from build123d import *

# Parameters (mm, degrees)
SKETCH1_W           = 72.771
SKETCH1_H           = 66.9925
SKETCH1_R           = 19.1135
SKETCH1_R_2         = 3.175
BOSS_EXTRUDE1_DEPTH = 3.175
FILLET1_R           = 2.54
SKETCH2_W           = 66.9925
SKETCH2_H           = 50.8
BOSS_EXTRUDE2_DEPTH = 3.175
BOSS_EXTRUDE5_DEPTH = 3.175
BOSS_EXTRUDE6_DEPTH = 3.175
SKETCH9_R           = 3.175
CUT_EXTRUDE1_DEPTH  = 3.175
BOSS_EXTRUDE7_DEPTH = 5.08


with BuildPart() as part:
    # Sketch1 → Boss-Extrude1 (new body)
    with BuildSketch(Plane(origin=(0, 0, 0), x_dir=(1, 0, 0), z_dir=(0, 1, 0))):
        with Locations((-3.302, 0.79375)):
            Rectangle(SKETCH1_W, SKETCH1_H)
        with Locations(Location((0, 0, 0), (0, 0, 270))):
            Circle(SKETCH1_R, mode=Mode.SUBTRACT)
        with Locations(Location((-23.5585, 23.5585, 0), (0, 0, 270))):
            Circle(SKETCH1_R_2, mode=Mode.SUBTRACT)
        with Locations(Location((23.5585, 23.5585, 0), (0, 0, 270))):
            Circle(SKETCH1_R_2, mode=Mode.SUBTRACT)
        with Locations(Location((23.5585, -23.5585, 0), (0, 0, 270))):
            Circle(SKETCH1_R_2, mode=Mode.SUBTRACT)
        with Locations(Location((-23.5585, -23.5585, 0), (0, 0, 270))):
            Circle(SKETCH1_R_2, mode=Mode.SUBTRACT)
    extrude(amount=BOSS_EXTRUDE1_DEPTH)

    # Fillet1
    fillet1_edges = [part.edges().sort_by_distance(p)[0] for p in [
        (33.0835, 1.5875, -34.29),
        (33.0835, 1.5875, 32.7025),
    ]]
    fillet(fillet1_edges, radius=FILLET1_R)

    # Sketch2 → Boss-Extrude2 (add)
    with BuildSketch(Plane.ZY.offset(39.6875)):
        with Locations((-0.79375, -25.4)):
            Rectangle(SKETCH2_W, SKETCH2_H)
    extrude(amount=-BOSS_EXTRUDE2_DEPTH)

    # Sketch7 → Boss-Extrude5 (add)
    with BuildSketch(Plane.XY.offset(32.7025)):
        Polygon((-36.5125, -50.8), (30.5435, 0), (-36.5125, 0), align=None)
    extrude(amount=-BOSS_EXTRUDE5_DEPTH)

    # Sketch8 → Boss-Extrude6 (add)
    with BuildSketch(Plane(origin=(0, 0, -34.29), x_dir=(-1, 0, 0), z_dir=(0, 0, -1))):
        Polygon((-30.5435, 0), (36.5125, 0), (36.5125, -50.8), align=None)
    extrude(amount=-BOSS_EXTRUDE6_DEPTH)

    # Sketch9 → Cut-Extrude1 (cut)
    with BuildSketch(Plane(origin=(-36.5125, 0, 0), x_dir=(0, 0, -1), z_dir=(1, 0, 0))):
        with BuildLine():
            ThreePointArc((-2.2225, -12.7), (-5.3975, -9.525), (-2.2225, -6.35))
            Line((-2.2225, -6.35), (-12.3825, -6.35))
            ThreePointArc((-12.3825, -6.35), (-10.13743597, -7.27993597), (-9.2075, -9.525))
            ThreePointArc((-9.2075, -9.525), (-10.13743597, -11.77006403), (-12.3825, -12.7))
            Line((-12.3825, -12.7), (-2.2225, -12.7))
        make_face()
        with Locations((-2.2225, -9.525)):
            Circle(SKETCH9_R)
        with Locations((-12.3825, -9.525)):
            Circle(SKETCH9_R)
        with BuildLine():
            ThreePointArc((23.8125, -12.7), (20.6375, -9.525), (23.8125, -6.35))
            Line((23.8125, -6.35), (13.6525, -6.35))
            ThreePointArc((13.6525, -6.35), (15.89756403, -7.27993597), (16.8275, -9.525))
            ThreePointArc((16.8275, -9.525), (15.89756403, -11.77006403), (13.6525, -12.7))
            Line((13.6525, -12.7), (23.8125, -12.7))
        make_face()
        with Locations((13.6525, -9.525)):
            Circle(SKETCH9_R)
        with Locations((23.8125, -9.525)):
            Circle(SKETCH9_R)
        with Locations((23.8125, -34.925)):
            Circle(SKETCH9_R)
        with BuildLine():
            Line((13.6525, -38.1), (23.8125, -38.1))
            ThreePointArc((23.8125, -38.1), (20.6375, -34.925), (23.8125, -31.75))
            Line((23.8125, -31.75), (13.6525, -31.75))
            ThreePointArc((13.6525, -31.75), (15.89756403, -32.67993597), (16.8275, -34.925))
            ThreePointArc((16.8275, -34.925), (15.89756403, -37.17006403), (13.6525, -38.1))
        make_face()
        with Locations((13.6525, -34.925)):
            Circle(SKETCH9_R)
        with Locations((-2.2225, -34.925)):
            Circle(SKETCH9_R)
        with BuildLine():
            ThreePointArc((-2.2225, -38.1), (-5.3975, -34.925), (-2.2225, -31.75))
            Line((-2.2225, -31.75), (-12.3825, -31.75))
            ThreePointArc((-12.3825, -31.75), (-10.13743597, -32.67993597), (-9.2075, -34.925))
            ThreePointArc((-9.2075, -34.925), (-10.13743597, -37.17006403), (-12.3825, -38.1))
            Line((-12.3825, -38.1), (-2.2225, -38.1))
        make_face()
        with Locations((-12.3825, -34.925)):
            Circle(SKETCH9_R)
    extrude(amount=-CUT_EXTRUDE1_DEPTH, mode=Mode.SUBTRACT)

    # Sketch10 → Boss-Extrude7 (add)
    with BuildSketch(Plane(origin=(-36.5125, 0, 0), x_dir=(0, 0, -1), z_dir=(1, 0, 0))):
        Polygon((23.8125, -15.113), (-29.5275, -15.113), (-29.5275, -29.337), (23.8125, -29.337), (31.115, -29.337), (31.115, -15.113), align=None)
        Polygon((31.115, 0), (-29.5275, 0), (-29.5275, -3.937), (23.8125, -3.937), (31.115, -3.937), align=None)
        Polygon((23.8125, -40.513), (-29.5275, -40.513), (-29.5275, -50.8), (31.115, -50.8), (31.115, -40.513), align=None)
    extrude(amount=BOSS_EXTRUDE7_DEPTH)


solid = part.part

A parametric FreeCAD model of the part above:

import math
import FreeCAD as App
import Part
import Sketcher
from FreeCAD import Vector
Q = App.Units.Quantity


def edges_at(feature, points):
    """Names of the edges that pass closest to the given points."""
    edges = feature.Shape.Edges
    near = lambda p: min(range(len(edges)), key=lambda i: edges[i].distToShape(Part.Vertex(*p))[0])
    return sorted({f"Edge{near(p) + 1}" for p in points})


def add_polygon(sketch, points):
    """Adds a closed chain of lines whose ends are joined by coincident constraints."""
    first, n = sketch.GeometryCount, len(points)
    for a, b in zip(points, points[1:] + points[:1]):
        sketch.addGeometry(Part.LineSegment(App.Vector(*a, 0), App.Vector(*b, 0)), False)
    for i in range(n):
        sketch.addConstraint(Sketcher.Constraint("Coincident", first + i, 2, first + (i + 1) % n, 1))

doc = App.newDocument("Part")
body = doc.addObject("PartDesign::Body", "Body")

# Sketch on XZ plane
sketch1 = doc.addObject("Sketcher::SketchObject", "Sketch")
body.addObject(sketch1)
sketch1.AttachmentSupport = (doc.XZ_Plane, [""])
sketch1.MapMode = "FlatFace"
add_polygon(sketch1, [(-39.6875, -34.29), (-39.6875, 32.7025), (33.0835, 32.7025), (33.0835, -34.29)])  # lines 0-3
sketch1.addGeometry(Part.Circle(Vector(-23.5585, 23.5585, 0), Vector(0, 0, 1), 3.175), False)  # 4
sketch1.addGeometry(Part.Circle(Vector(23.5585, 23.5585, 0), Vector(0, 0, 1), 3.175), False)  # 5
sketch1.addGeometry(Part.Circle(Vector(-23.5585, -23.5585, 0), Vector(0, 0, 1), 3.175), False)  # 6
sketch1.addGeometry(Part.Circle(Vector(0, 0, 0), Vector(0, 0, 1), 19.1135), False)  # 7
sketch1.addGeometry(Part.Circle(Vector(23.5585, -23.5585, 0), Vector(0, 0, 1), 3.175), False)  # 8
sketch1.addConstraint(Sketcher.Constraint("Vertical", 0))
sketch1.addConstraint(Sketcher.Constraint("Horizontal", 1))
sketch1.addConstraint(Sketcher.Constraint("Vertical", 2))
sketch1.addConstraint(Sketcher.Constraint("Horizontal", 3))
sketch1.addConstraint(Sketcher.Constraint("Coincident", 7, 3, -1, 1))
sketch1.addConstraint(Sketcher.Constraint("Equal", 4, 5))
sketch1.addConstraint(Sketcher.Constraint("Equal", 5, 6))
sketch1.addConstraint(Sketcher.Constraint("Equal", 6, 8))
sketch1.addConstraint(Sketcher.Constraint("Symmetric", 5, 3, 6, 3, -1, 1))
sketch1.addConstraint(Sketcher.Constraint("Symmetric", 4, 3, 8, 3, -1, 1))
sketch1.addConstraint(Sketcher.Constraint("Symmetric", 4, 3, 5, 3, -2))
sketch1.addConstraint(Sketcher.Constraint("Diameter", 4, Q("0.25 in")))
sketch1.addConstraint(Sketcher.Constraint("Diameter", 7, Q("1.505 in")))
sketch1.addConstraint(Sketcher.Constraint("DistanceX", 1, 1, 1, 2, Q("2.865 in")))
sketch1.addConstraint(Sketcher.Constraint("DistanceY", 2, 2, -1, 1, Q("1.35 in")))
sketch1.addConstraint(Sketcher.Constraint("DistanceY", 4, 3, 0, 2, Q("0.36 in")))
sketch1.addConstraint(Sketcher.Constraint("DistanceX", 0, 2, 5, 3, Q("2.49 in")))
sketch1.addConstraint(Sketcher.Constraint("DistanceX", 4, 3, 1, 2, Q("2.23 in")))
sketch1.addConstraint(Sketcher.Constraint("DistanceY", 0, 1, 0, 2, Q("2.6375 in")))
pad1 = doc.addObject("PartDesign::Pad", "Pad")
body.addObject(pad1)
pad1.Profile = sketch1
pad1.Length = Q("0.125 in")
pad1.Reversed = True
doc.recompute()

fillet = doc.addObject("PartDesign::Fillet", "Fillet")
body.addObject(fillet)
fillet.Base = (pad1, edges_at(pad1, [(33.084, 1.587, -34.29), (33.084, 1.587, 32.703)]))
fillet.Radius = Q("0.1 in")

# Sketch on YZ plane
sketch2 = doc.addObject("Sketcher::SketchObject", "Sketch001")
body.addObject(sketch2)
sketch2.AttachmentSupport = (doc.YZ_Plane, [""])
sketch2.MapMode = "FlatFace"
sketch2.AttachmentOffset = App.Placement(Vector(0, 0, -1.5625 * 25.4), App.Rotation())
add_polygon(sketch2, [(0, -34.29), (-50.8, -34.29), (-50.8, 32.7025), (0, 32.7025)])  # lines 0-3
sketch2.addConstraint(Sketcher.Constraint("Horizontal", 0))
sketch2.addConstraint(Sketcher.Constraint("Vertical", 1))
sketch2.addConstraint(Sketcher.Constraint("Horizontal", 2))
sketch2.addConstraint(Sketcher.Constraint("Vertical", 3))
sketch2.addConstraint(Sketcher.Constraint("PointOnObject", 2, 2, -2))
sketch2.addConstraint(Sketcher.Constraint("DistanceX", 0, 2, 0, 1, Q("2 in")))
sketch2.addConstraint(Sketcher.Constraint("DistanceY", 0, 2, -1, 1, Q("1.35 in")))
sketch2.addConstraint(Sketcher.Constraint("DistanceY", 1, 1, 1, 2, Q("2.6375 in")))
pad2 = doc.addObject("PartDesign::Pad", "Pad001")
body.addObject(pad2)
pad2.Profile = sketch2
pad2.Length = Q("0.125 in")

# Sketch on XY plane
sketch3 = doc.addObject("Sketcher::SketchObject", "Sketch002")
body.addObject(sketch3)
sketch3.AttachmentSupport = (doc.XY_Plane, [""])
sketch3.MapMode = "FlatFace"
sketch3.AttachmentOffset = App.Placement(Vector(0, 0, 1.2875 * 25.4), App.Rotation())
add_polygon(sketch3, [(-36.5125, -50.8), (30.5435, 0), (-36.5125, 0)])  # lines 0-2
sketch3.addConstraint(Sketcher.Constraint("Horizontal", 1))
sketch3.addConstraint(Sketcher.Constraint("Vertical", 2))
sketch3.addConstraint(Sketcher.Constraint("PointOnObject", 0, 2, -1))
sketch3.addConstraint(Sketcher.Constraint("DistanceY", 2, 2, 2, 1, Q("2 in")))
sketch3.addConstraint(Sketcher.Constraint("DistanceX", 1, 2, 1, 1, Q("2.64 in")))
sketch3.addConstraint(Sketcher.Constraint("DistanceX", 1, 2, -1, 1, Q("1.4375 in")))
pad3 = doc.addObject("PartDesign::Pad", "Pad002")
body.addObject(pad3)
pad3.Profile = sketch3
pad3.Length = Q("0.125 in")
pad3.Reversed = True

# Sketch on XY plane
sketch4 = doc.addObject("Sketcher::SketchObject", "Sketch003")
body.addObject(sketch4)
sketch4.AttachmentSupport = (doc.XY_Plane, [""])
sketch4.MapMode = "FlatFace"
sketch4.AttachmentOffset = App.Placement(Vector(0, 0, -1.35 * 25.4), App.Rotation())
add_polygon(sketch4, [(-36.5125, 0), (30.5435, 0), (-36.5125, -50.8)])  # lines 0-2
sketch4.addConstraint(Sketcher.Constraint("Horizontal", 0))
sketch4.addConstraint(Sketcher.Constraint("Vertical", 2))
sketch4.addConstraint(Sketcher.Constraint("PointOnObject", 0, 2, -1))
sketch4.addConstraint(Sketcher.Constraint("DistanceY", 2, 1, 2, 2, Q("2 in")))
sketch4.addConstraint(Sketcher.Constraint("DistanceX", 0, 1, 0, 2, Q("2.64 in")))
sketch4.addConstraint(Sketcher.Constraint("DistanceX", 1, 2, -1, 1, Q("1.4375 in")))
pad4 = doc.addObject("PartDesign::Pad", "Pad003")
body.addObject(pad4)
pad4.Profile = sketch4
pad4.Length = Q("0.125 in")

# Sketch on YZ plane
sketch5 = doc.addObject("Sketcher::SketchObject", "Sketch004")
body.addObject(sketch5)
sketch5.AttachmentSupport = (doc.YZ_Plane, [""])
sketch5.MapMode = "FlatFace"
sketch5.AttachmentOffset = App.Placement(Vector(0, 0, -1.4375 * 25.4), App.Rotation())
sketch5.addGeometry(Part.LineSegment(Vector(-6.35, 2.2225, 0), Vector(-6.35, 12.3825, 0)), False)
sketch5.addGeometry(Part.ArcOfCircle(Part.Circle(Vector(-9.525, 12.3825, 0), Vector(0, 0, 1), 3.175), math.radians(0), math.radians(180)), False)
sketch5.addGeometry(Part.LineSegment(Vector(-12.7, 12.3825, 0), Vector(-12.7, 2.2225, 0)), False)
sketch5.addGeometry(Part.ArcOfCircle(Part.Circle(Vector(-9.525, 2.2225, 0), Vector(0, 0, 1), 3.175), math.radians(180), math.radians(360)), False)
sketch5.addGeometry(Part.LineSegment(Vector(-6.35, -23.8125, 0), Vector(-6.35, -13.6525, 0)), False)
sketch5.addGeometry(Part.ArcOfCircle(Part.Circle(Vector(-9.525, -13.6525, 0), Vector(0, 0, 1), 3.175), math.radians(0), math.radians(180)), False)
sketch5.addGeometry(Part.LineSegment(Vector(-12.7, -13.6525, 0), Vector(-12.7, -23.8125, 0)), False)
sketch5.addGeometry(Part.ArcOfCircle(Part.Circle(Vector(-9.525, -23.8125, 0), Vector(0, 0, 1), 3.175), math.radians(180), math.radians(360)), False)
sketch5.addGeometry(Part.LineSegment(Vector(-31.75, -23.8125, 0), Vector(-31.75, -13.6525, 0)), False)
sketch5.addGeometry(Part.ArcOfCircle(Part.Circle(Vector(-34.925, -13.6525, 0), Vector(0, 0, 1), 3.175), math.radians(0), math.radians(180)), False)
sketch5.addGeometry(Part.LineSegment(Vector(-38.1, -13.6525, 0), Vector(-38.1, -23.8125, 0)), False)
sketch5.addGeometry(Part.ArcOfCircle(Part.Circle(Vector(-34.925, -23.8125, 0), Vector(0, 0, 1), 3.175), math.radians(180), math.radians(360)), False)
sketch5.addGeometry(Part.LineSegment(Vector(-31.75, 2.2225, 0), Vector(-31.75, 12.3825, 0)), False)
sketch5.addGeometry(Part.ArcOfCircle(Part.Circle(Vector(-34.925, 12.3825, 0), Vector(0, 0, 1), 3.175), math.radians(0), math.radians(180)), False)
sketch5.addGeometry(Part.LineSegment(Vector(-38.1, 12.3825, 0), Vector(-38.1, 2.2225, 0)), False)
sketch5.addGeometry(Part.ArcOfCircle(Part.Circle(Vector(-34.925, 2.2225, 0), Vector(0, 0, 1), 3.175), math.radians(180), math.radians(360)), False)
sketch5.addConstraint(Sketcher.Constraint("Tangent", 0, 2, 1, 1))
sketch5.addConstraint(Sketcher.Constraint("Tangent", 1, 2, 2, 1))
sketch5.addConstraint(Sketcher.Constraint("Tangent", 2, 2, 3, 1))
sketch5.addConstraint(Sketcher.Constraint("Tangent", 3, 2, 0, 1))
sketch5.addConstraint(Sketcher.Constraint("Tangent", 4, 2, 5, 1))
sketch5.addConstraint(Sketcher.Constraint("Tangent", 5, 2, 6, 1))
sketch5.addConstraint(Sketcher.Constraint("Tangent", 6, 2, 7, 1))
sketch5.addConstraint(Sketcher.Constraint("Tangent", 7, 2, 4, 1))
sketch5.addConstraint(Sketcher.Constraint("Tangent", 8, 2, 9, 1))
sketch5.addConstraint(Sketcher.Constraint("Tangent", 9, 2, 10, 1))
sketch5.addConstraint(Sketcher.Constraint("Tangent", 10, 2, 11, 1))
sketch5.addConstraint(Sketcher.Constraint("Tangent", 11, 2, 8, 1))
sketch5.addConstraint(Sketcher.Constraint("Tangent", 12, 2, 13, 1))
sketch5.addConstraint(Sketcher.Constraint("Tangent", 13, 2, 14, 1))
sketch5.addConstraint(Sketcher.Constraint("Tangent", 14, 2, 15, 1))
sketch5.addConstraint(Sketcher.Constraint("Tangent", 15, 2, 12, 1))
sketch5.addConstraint(Sketcher.Constraint("Vertical", 0))
sketch5.addConstraint(Sketcher.Constraint("Vertical", 2))
sketch5.addConstraint(Sketcher.Constraint("Vertical", 4))
sketch5.addConstraint(Sketcher.Constraint("Vertical", 6))
sketch5.addConstraint(Sketcher.Constraint("Vertical", 8))
sketch5.addConstraint(Sketcher.Constraint("Vertical", 10))
sketch5.addConstraint(Sketcher.Constraint("Vertical", 12))
sketch5.addConstraint(Sketcher.Constraint("Vertical", 14))
sketch5.addConstraint(Sketcher.Constraint("Equal", 3, 5))
sketch5.addConstraint(Sketcher.Constraint("Equal", 7, 9))
sketch5.addConstraint(Sketcher.Constraint("Equal", 11, 13))
sketch5.addConstraint(Sketcher.Constraint("Horizontal", 5, 3, 9, 3))
sketch5.addConstraint(Sketcher.Constraint("Horizontal", 7, 3, 11, 3))
sketch5.addConstraint(Sketcher.Constraint("Horizontal", 1, 3, 13, 3))
sketch5.addConstraint(Sketcher.Constraint("Horizontal", 3, 3, 15, 3))
sketch5.addConstraint(Sketcher.Constraint("Vertical", 3, 3, 5, 3))
sketch5.addConstraint(Sketcher.Constraint("Vertical", 11, 3, 13, 3))
sketch5.addConstraint(Sketcher.Constraint("Equal", 2, 4))
sketch5.addConstraint(Sketcher.Constraint("DistanceY", 0, 1, 0, 2, Q("0.4 in")))
sketch5.addConstraint(Sketcher.Constraint("Radius", 1, Q("0.125 in")))
sketch5.addConstraint(Sketcher.Constraint("DistanceX", 9, 3, 5, 3, Q("1 in")))
sketch5.addConstraint(Sketcher.Constraint("DistanceX", 1, 2, -1, 1, Q("0.5 in")))
sketch5.addConstraint(Sketcher.Constraint("DistanceY", 7, 3, -1, 1, Q("0.9375 in")))
sketch5.addConstraint(Sketcher.Constraint("DistanceY", 5, 3, 3, 3, Q("0.625 in")))
pocket1 = doc.addObject("PartDesign::Pocket", "Pocket")
body.addObject(pocket1)
pocket1.Profile = sketch5
pocket1.Length = Q("0.125 in")

# Sketch on YZ plane
sketch6 = doc.addObject("Sketcher::SketchObject", "Sketch005")
body.addObject(sketch6)
sketch6.AttachmentSupport = (doc.YZ_Plane, [""])
sketch6.MapMode = "FlatFace"
sketch6.AttachmentOffset = App.Placement(Vector(0, 0, -1.4375 * 25.4), App.Rotation())
add_polygon(sketch6, [(-15.113, 29.5275), (-29.337, 29.5275), (-29.337, -31.115), (-15.113, -31.115)])  # lines 0-3
add_polygon(sketch6, [(0, -31.115), (0, 29.5275), (-3.937, 29.5275), (-3.937, -31.115)])  # lines 4-7
add_polygon(sketch6, [(-40.513, 29.5275), (-50.8, 29.5275), (-50.8, -31.115), (-40.513, -31.115)])  # lines 8-11
sketch6.addConstraint(Sketcher.Constraint("Horizontal", 0))
sketch6.addConstraint(Sketcher.Constraint("Vertical", 1))
sketch6.addConstraint(Sketcher.Constraint("Horizontal", 2))
sketch6.addConstraint(Sketcher.Constraint("Vertical", 3))
sketch6.addConstraint(Sketcher.Constraint("Vertical", 4))
sketch6.addConstraint(Sketcher.Constraint("Horizontal", 5))
sketch6.addConstraint(Sketcher.Constraint("Vertical", 6))
sketch6.addConstraint(Sketcher.Constraint("Horizontal", 7))
sketch6.addConstraint(Sketcher.Constraint("Horizontal", 8))
sketch6.addConstraint(Sketcher.Constraint("Vertical", 9))
sketch6.addConstraint(Sketcher.Constraint("Horizontal", 10))
sketch6.addConstraint(Sketcher.Constraint("Vertical", 11))
sketch6.addConstraint(Sketcher.Constraint("PointOnObject", 4, 2, -2))
sketch6.addConstraint(Sketcher.Constraint("Horizontal", 3, 2, 4, 2))
sketch6.addConstraint(Sketcher.Constraint("Horizontal", 2, 2, 6, 2))
sketch6.addConstraint(Sketcher.Constraint("Horizontal", 5, 2, 8, 2))
sketch6.addConstraint(Sketcher.Constraint("Horizontal", 7, 2, 9, 2))
sketch6.addConstraint(Sketcher.Constraint("DistanceX", 8, 2, -1, 1, Q("2 in")))
sketch6.addConstraint(Sketcher.Constraint("DistanceX", 0, 2, 5, 2, Q("1 in")))
sketch6.addConstraint(Sketcher.Constraint("DistanceX", 10, 2, 2, 2, Q("1 in")))
sketch6.addConstraint(Sketcher.Constraint("DistanceX", 0, 2, 0, 1, Q("0.56 in")))
sketch6.addConstraint(Sketcher.Constraint("DistanceX", 5, 2, 5, 1, Q("0.155 in")))
sketch6.addConstraint(Sketcher.Constraint("DistanceY", 1, 2, 1, 1, Q("2.3875 in")))
sketch6.addConstraint(Sketcher.Constraint("DistanceY", 1, 2, -1, 1, Q("1.225 in")))
pad5 = doc.addObject("PartDesign::Pad", "Pad004")
body.addObject(pad5)
pad5.Profile = sketch6
pad5.Length = Q("0.2 in")

doc.recompute()
